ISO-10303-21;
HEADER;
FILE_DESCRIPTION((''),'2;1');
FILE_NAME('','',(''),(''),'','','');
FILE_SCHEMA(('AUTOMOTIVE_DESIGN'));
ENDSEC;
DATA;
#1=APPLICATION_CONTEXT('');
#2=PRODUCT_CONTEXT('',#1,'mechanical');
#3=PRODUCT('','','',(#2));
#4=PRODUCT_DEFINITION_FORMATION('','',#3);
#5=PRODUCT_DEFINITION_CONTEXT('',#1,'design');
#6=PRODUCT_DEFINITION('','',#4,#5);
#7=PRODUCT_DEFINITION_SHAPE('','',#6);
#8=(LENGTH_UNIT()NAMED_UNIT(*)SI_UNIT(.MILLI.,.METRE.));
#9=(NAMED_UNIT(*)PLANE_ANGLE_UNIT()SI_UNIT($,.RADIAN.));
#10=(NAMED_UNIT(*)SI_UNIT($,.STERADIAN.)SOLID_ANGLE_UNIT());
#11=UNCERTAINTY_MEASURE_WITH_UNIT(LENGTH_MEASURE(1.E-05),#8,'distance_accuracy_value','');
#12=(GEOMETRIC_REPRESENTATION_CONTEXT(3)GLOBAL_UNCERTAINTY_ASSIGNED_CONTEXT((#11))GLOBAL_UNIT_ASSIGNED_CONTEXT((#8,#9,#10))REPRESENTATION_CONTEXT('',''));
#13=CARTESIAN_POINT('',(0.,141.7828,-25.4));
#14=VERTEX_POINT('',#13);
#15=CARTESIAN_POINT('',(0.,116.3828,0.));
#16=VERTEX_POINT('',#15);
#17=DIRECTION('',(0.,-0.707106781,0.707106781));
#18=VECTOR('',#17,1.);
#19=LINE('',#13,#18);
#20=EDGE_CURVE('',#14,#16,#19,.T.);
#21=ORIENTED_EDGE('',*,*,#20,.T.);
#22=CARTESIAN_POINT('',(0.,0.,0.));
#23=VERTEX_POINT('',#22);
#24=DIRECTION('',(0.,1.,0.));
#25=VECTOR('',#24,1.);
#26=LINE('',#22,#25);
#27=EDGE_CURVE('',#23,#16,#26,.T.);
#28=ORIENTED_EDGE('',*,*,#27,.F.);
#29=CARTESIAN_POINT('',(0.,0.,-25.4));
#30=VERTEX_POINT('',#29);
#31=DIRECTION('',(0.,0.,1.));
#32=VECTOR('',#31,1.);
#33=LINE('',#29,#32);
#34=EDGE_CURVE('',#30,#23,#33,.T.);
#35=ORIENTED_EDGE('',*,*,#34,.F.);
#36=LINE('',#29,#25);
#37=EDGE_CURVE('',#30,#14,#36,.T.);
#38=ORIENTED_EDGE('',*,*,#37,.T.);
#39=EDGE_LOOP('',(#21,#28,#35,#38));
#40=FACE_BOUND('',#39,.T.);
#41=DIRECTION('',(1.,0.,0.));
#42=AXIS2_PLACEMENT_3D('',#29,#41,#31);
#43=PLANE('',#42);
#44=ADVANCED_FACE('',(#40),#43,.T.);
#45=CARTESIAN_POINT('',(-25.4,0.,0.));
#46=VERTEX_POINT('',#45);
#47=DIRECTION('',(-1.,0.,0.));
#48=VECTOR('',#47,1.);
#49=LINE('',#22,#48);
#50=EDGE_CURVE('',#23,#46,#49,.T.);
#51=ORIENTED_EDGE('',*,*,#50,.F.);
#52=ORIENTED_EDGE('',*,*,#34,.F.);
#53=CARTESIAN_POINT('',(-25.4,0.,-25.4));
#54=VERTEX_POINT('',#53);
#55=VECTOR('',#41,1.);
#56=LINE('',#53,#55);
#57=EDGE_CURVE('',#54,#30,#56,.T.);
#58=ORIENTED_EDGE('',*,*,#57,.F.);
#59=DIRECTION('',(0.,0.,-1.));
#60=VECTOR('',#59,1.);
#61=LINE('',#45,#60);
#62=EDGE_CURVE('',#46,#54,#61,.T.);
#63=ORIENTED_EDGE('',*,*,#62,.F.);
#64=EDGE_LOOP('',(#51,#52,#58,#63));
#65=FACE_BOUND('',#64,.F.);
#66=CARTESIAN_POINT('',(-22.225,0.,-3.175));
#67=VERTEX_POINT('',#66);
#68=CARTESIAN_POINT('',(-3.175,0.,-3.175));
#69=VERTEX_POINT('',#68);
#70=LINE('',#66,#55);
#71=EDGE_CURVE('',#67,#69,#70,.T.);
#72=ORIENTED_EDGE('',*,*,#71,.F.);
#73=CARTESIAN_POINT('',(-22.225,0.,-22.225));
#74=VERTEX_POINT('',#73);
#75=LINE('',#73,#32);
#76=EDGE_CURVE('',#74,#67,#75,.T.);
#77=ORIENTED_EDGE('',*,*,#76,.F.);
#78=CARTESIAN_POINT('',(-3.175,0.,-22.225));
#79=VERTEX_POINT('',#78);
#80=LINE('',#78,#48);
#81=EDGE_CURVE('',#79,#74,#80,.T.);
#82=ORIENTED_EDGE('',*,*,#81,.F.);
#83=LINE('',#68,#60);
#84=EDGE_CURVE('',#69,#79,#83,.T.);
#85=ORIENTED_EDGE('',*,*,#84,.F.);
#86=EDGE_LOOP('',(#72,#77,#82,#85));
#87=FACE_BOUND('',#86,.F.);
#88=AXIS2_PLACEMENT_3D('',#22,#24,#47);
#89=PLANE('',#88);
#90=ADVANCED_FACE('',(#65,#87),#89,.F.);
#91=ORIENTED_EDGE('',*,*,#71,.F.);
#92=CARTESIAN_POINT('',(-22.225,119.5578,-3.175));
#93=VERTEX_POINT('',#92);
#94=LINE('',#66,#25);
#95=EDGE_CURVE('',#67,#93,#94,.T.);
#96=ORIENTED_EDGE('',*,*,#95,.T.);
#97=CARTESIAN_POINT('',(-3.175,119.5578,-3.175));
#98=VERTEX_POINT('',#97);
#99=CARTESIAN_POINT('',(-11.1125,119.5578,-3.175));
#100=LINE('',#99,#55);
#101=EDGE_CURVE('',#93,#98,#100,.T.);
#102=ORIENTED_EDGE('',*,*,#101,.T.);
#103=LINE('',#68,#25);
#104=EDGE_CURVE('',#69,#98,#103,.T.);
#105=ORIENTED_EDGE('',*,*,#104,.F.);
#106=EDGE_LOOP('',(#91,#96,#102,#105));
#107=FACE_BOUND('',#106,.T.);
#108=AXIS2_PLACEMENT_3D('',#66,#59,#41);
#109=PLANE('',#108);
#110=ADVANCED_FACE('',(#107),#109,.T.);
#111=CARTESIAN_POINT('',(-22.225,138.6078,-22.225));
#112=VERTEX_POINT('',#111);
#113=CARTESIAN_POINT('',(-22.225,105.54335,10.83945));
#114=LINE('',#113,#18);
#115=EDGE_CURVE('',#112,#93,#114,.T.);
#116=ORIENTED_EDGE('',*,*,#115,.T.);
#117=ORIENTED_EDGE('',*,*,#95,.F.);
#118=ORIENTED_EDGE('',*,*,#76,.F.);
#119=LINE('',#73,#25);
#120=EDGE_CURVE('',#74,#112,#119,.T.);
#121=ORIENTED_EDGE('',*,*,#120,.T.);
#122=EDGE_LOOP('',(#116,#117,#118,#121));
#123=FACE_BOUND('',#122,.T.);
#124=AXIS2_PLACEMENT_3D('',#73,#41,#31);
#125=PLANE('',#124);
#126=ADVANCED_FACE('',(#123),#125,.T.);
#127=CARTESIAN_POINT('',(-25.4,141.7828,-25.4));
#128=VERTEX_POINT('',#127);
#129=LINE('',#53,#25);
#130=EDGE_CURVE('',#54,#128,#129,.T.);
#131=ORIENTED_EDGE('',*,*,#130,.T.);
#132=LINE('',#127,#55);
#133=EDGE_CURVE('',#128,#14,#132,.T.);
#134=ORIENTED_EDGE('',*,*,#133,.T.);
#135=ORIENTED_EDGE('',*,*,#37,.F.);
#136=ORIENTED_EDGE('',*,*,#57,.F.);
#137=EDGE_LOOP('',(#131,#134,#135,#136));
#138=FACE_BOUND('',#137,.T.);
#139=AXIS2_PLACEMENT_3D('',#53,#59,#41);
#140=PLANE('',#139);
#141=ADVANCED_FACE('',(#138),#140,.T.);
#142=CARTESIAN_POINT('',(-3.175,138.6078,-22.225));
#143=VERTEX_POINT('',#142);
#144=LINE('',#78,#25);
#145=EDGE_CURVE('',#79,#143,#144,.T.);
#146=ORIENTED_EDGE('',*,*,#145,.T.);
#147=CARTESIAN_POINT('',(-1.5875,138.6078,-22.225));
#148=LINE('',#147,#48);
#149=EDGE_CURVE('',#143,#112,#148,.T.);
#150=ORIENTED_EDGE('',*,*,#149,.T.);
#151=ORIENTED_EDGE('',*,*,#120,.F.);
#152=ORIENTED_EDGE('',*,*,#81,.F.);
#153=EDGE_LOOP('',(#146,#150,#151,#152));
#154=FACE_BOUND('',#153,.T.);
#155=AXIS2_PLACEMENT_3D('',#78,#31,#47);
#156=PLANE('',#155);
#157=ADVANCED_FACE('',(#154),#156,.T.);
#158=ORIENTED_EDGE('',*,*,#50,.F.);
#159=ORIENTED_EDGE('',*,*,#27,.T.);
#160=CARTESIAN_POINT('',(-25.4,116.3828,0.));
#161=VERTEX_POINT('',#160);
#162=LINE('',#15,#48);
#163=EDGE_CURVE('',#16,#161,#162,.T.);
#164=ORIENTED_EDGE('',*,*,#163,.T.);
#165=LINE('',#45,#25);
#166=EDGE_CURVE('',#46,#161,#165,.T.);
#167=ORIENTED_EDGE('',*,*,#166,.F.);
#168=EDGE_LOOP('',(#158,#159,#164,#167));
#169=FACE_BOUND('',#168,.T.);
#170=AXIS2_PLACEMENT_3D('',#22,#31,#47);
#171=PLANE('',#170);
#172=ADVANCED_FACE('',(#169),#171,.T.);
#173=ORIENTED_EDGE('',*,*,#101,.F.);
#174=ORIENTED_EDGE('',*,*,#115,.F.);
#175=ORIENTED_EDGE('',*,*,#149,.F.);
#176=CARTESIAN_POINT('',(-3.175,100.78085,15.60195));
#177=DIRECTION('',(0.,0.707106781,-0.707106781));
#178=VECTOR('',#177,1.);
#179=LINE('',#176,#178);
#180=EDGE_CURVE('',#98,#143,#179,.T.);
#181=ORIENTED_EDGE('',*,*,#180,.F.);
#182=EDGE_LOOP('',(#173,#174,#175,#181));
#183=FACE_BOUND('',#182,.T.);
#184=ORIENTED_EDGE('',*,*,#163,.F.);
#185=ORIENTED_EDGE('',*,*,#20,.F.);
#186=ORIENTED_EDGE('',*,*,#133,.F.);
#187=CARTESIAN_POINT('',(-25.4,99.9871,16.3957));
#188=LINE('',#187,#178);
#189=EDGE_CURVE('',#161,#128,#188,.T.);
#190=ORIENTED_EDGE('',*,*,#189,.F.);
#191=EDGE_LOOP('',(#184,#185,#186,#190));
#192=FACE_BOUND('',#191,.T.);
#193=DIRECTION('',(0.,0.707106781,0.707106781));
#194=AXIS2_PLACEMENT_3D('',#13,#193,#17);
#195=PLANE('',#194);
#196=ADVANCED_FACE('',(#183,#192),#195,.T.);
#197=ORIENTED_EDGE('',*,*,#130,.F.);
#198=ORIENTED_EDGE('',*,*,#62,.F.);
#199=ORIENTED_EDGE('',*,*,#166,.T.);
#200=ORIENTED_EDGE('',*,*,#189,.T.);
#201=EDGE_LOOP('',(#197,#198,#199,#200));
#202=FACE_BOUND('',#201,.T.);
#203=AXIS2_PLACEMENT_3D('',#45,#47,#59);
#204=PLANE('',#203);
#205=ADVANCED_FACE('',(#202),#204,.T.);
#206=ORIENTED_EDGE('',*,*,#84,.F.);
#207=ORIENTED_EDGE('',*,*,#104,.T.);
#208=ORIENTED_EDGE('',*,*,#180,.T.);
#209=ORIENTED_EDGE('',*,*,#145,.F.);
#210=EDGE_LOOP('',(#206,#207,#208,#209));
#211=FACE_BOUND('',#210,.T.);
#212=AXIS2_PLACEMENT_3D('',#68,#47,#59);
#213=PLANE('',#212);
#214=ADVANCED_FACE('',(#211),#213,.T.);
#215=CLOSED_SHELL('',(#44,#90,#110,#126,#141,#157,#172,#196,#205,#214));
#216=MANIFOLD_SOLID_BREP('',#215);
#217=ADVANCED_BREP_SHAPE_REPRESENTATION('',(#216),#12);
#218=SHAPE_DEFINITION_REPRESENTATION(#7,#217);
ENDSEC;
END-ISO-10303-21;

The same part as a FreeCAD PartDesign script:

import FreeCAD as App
import Part
import Sketcher

V = App.Vector
Q = App.Units.Quantity


def add_polygon(sketch, points):
    """Adds a closed chain of lines whose ends are joined by coincident constraints."""
    first, n = sketch.GeometryCount, len(points)
    for a, b in zip(points, points[1:] + points[:1]):
        sketch.addGeometry(Part.LineSegment(App.Vector(*a, 0), App.Vector(*b, 0)), False)
    for i in range(n):
        sketch.addConstraint(Sketcher.Constraint("Coincident", first + i, 2, first + (i + 1) % n, 1))

doc = App.newDocument("Part")
params = doc.addObject("Spreadsheet::Sheet", "Params")
for row, (alias, value) in enumerate([
    ("sketch1_width", "1 in"),
    ("pad1_length", "5.582 in"),
    ("sketch2_width", "1 in"),
    ("pocket1_length", "5.582 in"),
], start=1):
    params.set(f"A{row}", alias)
    params.set(f"B{row}", "=" + value)
    params.setAlias(f"B{row}", alias)

body = doc.addObject("PartDesign::Body", "Body")

# Sketch on XZ plane
sketch1 = doc.addObject("Sketcher::SketchObject", "Sketch")
body.addObject(sketch1)
sketch1.AttachmentSupport = (doc.XZ_Plane, [""])
sketch1.MapMode = "FlatFace"
add_polygon(sketch1, [(-25, 0), (0, 0), (0, -25), (-25, -25)])  # lines 0-3
add_polygon(sketch1, [(-22, -3), (-22, -22), (-3, -22), (-3, -3)])  # lines 4-7
sketch1.addConstraint([
    Sketcher.Constraint("Horizontal", 0),
    Sketcher.Constraint("Vertical", 1),
    Sketcher.Constraint("Horizontal", 2),
    Sketcher.Constraint("Vertical", 3),
    Sketcher.Constraint("Vertical", 4),
    Sketcher.Constraint("Horizontal", 5),
    Sketcher.Constraint("Vertical", 6),
    Sketcher.Constraint("Horizontal", 7),
    Sketcher.Constraint("Coincident", 0, 2, -1, 1),
    Sketcher.Constraint("Equal", 2, 1),
    Sketcher.Constraint("Equal", 7, 4),
    Sketcher.Constraint("DistanceX", 0, 1, 0, 2, Q("1 in")),
    Sketcher.Constraint("DistanceX", 5, 2, -1, 1, Q("0.125 in")),
    Sketcher.Constraint("DistanceY", 6, 2, -1, 1, Q("0.125 in")),
    Sketcher.Constraint("DistanceX", 2, 2, 4, 2, Q("0.125 in")),
])
sketch1.setExpression("Constraints[19]", "Params.sketch1_width")
pad1 = doc.addObject("PartDesign::Pad", "Pad")
body.addObject(pad1)
pad1.Profile = sketch1
pad1.setExpression("Length", "Params.pad1_length")
pad1.Reversed = True

# Sketch on YZ plane
sketch2 = doc.addObject("Sketcher::SketchObject", "Sketch001")
body.addObject(sketch2)
sketch2.AttachmentSupport = (doc.YZ_Plane, [""])
sketch2.MapMode = "FlatFace"
add_polygon(sketch2, [(142, 0), (116, 0), (142, -25)])  # lines 0-2
sketch2.addConstraint([
    Sketcher.Constraint("Horizontal", 0),
    Sketcher.Constraint("Vertical", 2),
    Sketcher.Constraint("PointOnObject", 0, 2, -1),
    Sketcher.Constraint("Equal", 0, 2),
    Sketcher.Constraint("DistanceX", 0, 2, 0, 1, Q("1 in")),
    Sketcher.Constraint("DistanceX", -1, 1, 0, 2, Q("4.582 in")),
])
sketch2.setExpression("Constraints[7]", "Params.sketch2_width")
pocket1 = doc.addObject("PartDesign::Pocket", "Pocket")
body.addObject(pocket1)
pocket1.Profile = sketch2
pocket1.setExpression("Length", "Params.pocket1_length")

doc.recompute()
